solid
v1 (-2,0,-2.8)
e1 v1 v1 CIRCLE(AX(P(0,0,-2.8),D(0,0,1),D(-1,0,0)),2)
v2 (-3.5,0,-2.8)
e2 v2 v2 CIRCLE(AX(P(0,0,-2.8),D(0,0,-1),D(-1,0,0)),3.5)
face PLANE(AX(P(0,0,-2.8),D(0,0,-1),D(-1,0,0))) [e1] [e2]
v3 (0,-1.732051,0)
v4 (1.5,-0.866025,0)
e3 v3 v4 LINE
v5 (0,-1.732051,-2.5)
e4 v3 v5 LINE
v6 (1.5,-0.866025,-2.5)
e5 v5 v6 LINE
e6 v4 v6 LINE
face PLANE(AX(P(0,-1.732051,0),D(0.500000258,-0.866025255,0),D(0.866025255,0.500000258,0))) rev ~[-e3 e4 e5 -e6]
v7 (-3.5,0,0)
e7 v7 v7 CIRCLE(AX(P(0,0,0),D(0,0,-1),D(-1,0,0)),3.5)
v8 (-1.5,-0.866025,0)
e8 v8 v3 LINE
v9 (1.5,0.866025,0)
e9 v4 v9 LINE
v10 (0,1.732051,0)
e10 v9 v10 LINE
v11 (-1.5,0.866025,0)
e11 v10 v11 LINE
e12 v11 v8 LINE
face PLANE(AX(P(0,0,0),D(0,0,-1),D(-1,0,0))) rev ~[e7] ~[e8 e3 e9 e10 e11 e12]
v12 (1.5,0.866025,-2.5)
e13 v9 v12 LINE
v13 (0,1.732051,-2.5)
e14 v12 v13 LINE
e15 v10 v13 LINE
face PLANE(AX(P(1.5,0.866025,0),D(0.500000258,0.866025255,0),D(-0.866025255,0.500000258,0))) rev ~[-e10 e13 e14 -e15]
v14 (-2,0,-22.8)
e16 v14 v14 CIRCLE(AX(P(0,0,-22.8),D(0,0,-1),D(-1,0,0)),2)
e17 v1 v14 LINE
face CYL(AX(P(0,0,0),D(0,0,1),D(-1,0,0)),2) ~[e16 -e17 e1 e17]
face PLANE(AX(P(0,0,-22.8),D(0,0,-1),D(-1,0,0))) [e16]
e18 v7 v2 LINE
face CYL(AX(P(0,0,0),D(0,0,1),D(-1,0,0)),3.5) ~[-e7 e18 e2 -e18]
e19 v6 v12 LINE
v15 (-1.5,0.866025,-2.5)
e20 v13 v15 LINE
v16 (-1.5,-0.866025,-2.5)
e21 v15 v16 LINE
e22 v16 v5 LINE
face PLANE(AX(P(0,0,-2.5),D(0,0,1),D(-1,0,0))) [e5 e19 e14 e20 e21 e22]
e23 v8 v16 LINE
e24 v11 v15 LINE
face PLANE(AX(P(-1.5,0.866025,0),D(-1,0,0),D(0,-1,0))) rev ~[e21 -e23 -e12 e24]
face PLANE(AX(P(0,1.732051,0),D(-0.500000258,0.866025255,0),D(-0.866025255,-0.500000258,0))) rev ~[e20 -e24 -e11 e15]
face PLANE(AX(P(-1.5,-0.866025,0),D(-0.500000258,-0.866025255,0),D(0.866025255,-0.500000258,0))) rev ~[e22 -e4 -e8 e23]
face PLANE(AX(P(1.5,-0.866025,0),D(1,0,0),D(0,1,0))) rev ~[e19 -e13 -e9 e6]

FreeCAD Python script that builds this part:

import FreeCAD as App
import Part
import Sketcher
Q = App.Units.Quantity


def add_polygon(sketch, points):
    """Adds a closed chain of lines whose ends are joined by coincident constraints."""
    first, n = sketch.GeometryCount, len(points)
    for a, b in zip(points, points[1:] + points[:1]):
        sketch.addGeometry(Part.LineSegment(App.Vector(*a, 0), App.Vector(*b, 0)), False)
    for i in range(n):
        sketch.addConstraint(Sketcher.Constraint("Coincident", first + i, 2, first + (i + 1) % n, 1))

doc = App.newDocument("Part")
params = doc.addObject("Spreadsheet::Sheet", "Params")
for row, (alias, value) in enumerate([
    ("sketch1_diameter", "4 mm"),
    ("pad1_length", "22.8 mm"),
    ("sketch2_diameter", "7 mm"),
    ("pad2_length", "2.8 mm"),
    ("pocket1_length", "2.5 mm"),
], start=1):
    params.set(f"A{row}", alias)
    params.set(f"B{row}", "=" + value)
    params.setAlias(f"B{row}", alias)

body = doc.addObject("PartDesign::Body", "Body")

sketch1 = body.newObject("Sketcher::SketchObject", "Sketch")
sketch1.AttachmentSupport = (doc.getObject("XY_Plane"), [""])
sketch1.MapMode = "FlatFace"
sketch1.addGeometry(Part.Circle(App.Vector(0, 0, 0), App.Vector(0, 0, 1), 2), False)
sketch1.addConstraint([
    Sketcher.Constraint("Coincident", 0, 3, -1, 1),
    Sketcher.Constraint("Diameter", 0, 4.0),
])
sketch1.setExpression("Constraints[1]", "Params.sketch1_diameter")
pad1 = body.newObject("PartDesign::Pad", "Pad")
pad1.Profile = sketch1
pad1.setExpression("Length", "Params.pad1_length")
body2 = doc.addObject("PartDesign::Body", "Body001")

sketch2 = body2.newObject("Sketcher::SketchObject", "Sketch001")
sketch2.AttachmentSupport = (doc.getObject("XY_Plane001"), [""])
sketch2.MapMode = "FlatFace"
sketch2.addGeometry(Part.Circle(App.Vector(0, 0, 0), App.Vector(0, 0, 1), 3.5), False)
sketch2.addConstraint([
    Sketcher.Constraint("Coincident", 0, 3, -1, 1),
    Sketcher.Constraint("Diameter", 0, 7.0),
])
sketch2.setExpression("Constraints[1]", "Params.sketch2_diameter")
pad2 = body2.newObject("PartDesign::Pad", "Pad001")
pad2.Profile = sketch2
pad2.setExpression("Length", "Params.pad2_length")
doc.recompute()

boolean = body2.newObject("PartDesign::Boolean", "Boolean")
boolean.Type = "Fuse"
boolean.addObjects([body])
body3 = doc.addObject("PartDesign::Body", "Body002")
doc.recompute()

body2.Placement = App.Placement(App.Vector(0, 0, 0), App.Rotation(App.Vector(0, 1, 0), 180))
boolean2 = body3.newObject("PartDesign::Boolean", "Boolean001")
boolean2.Type = "Fuse"
boolean2.addObjects([body2])

sketch3 = body3.newObject("Sketcher::SketchObject", "Sketch002")
sketch3.AttachmentSupport = (doc.getObject("XY_Plane002"), [""])
sketch3.MapMode = "FlatFace"
add_polygon(sketch3, [(-1.5, 0.9), (-1.5, -0.9), (0, -1.7), (1.5, -0.9), (1.5, 0.9), (0, 1.7)])
sketch3.addConstraint([
    Sketcher.Constraint("Vertical", 0),
    Sketcher.Constraint("Vertical", 3),
    Sketcher.Constraint("Symmetric", 0, 2, 3, 2, -1, 1),
    Sketcher.Constraint("Symmetric", 1, 2, 4, 2, -1, 1),
    Sketcher.Constraint("PointOnObject", 1, 2, -2),
    Sketcher.Constraint("Parallel", 2, 5),
    Sketcher.Constraint("Horizontal", 0, 2, 2, 2),
    Sketcher.Constraint("Angle", 1, Q("-30.000017 deg")),
    Sketcher.Constraint("DistanceX", 0, 2, 2, 2, 3.0),
    Sketcher.Constraint("DistanceY", 0, 2, 0, 1, 1.73205),
])
pocket1 = body3.newObject("PartDesign::Pocket", "Pocket")
pocket1.Profile = sketch3
pocket1.setExpression("Length", "Params.pocket1_length")

doc.recompute()
